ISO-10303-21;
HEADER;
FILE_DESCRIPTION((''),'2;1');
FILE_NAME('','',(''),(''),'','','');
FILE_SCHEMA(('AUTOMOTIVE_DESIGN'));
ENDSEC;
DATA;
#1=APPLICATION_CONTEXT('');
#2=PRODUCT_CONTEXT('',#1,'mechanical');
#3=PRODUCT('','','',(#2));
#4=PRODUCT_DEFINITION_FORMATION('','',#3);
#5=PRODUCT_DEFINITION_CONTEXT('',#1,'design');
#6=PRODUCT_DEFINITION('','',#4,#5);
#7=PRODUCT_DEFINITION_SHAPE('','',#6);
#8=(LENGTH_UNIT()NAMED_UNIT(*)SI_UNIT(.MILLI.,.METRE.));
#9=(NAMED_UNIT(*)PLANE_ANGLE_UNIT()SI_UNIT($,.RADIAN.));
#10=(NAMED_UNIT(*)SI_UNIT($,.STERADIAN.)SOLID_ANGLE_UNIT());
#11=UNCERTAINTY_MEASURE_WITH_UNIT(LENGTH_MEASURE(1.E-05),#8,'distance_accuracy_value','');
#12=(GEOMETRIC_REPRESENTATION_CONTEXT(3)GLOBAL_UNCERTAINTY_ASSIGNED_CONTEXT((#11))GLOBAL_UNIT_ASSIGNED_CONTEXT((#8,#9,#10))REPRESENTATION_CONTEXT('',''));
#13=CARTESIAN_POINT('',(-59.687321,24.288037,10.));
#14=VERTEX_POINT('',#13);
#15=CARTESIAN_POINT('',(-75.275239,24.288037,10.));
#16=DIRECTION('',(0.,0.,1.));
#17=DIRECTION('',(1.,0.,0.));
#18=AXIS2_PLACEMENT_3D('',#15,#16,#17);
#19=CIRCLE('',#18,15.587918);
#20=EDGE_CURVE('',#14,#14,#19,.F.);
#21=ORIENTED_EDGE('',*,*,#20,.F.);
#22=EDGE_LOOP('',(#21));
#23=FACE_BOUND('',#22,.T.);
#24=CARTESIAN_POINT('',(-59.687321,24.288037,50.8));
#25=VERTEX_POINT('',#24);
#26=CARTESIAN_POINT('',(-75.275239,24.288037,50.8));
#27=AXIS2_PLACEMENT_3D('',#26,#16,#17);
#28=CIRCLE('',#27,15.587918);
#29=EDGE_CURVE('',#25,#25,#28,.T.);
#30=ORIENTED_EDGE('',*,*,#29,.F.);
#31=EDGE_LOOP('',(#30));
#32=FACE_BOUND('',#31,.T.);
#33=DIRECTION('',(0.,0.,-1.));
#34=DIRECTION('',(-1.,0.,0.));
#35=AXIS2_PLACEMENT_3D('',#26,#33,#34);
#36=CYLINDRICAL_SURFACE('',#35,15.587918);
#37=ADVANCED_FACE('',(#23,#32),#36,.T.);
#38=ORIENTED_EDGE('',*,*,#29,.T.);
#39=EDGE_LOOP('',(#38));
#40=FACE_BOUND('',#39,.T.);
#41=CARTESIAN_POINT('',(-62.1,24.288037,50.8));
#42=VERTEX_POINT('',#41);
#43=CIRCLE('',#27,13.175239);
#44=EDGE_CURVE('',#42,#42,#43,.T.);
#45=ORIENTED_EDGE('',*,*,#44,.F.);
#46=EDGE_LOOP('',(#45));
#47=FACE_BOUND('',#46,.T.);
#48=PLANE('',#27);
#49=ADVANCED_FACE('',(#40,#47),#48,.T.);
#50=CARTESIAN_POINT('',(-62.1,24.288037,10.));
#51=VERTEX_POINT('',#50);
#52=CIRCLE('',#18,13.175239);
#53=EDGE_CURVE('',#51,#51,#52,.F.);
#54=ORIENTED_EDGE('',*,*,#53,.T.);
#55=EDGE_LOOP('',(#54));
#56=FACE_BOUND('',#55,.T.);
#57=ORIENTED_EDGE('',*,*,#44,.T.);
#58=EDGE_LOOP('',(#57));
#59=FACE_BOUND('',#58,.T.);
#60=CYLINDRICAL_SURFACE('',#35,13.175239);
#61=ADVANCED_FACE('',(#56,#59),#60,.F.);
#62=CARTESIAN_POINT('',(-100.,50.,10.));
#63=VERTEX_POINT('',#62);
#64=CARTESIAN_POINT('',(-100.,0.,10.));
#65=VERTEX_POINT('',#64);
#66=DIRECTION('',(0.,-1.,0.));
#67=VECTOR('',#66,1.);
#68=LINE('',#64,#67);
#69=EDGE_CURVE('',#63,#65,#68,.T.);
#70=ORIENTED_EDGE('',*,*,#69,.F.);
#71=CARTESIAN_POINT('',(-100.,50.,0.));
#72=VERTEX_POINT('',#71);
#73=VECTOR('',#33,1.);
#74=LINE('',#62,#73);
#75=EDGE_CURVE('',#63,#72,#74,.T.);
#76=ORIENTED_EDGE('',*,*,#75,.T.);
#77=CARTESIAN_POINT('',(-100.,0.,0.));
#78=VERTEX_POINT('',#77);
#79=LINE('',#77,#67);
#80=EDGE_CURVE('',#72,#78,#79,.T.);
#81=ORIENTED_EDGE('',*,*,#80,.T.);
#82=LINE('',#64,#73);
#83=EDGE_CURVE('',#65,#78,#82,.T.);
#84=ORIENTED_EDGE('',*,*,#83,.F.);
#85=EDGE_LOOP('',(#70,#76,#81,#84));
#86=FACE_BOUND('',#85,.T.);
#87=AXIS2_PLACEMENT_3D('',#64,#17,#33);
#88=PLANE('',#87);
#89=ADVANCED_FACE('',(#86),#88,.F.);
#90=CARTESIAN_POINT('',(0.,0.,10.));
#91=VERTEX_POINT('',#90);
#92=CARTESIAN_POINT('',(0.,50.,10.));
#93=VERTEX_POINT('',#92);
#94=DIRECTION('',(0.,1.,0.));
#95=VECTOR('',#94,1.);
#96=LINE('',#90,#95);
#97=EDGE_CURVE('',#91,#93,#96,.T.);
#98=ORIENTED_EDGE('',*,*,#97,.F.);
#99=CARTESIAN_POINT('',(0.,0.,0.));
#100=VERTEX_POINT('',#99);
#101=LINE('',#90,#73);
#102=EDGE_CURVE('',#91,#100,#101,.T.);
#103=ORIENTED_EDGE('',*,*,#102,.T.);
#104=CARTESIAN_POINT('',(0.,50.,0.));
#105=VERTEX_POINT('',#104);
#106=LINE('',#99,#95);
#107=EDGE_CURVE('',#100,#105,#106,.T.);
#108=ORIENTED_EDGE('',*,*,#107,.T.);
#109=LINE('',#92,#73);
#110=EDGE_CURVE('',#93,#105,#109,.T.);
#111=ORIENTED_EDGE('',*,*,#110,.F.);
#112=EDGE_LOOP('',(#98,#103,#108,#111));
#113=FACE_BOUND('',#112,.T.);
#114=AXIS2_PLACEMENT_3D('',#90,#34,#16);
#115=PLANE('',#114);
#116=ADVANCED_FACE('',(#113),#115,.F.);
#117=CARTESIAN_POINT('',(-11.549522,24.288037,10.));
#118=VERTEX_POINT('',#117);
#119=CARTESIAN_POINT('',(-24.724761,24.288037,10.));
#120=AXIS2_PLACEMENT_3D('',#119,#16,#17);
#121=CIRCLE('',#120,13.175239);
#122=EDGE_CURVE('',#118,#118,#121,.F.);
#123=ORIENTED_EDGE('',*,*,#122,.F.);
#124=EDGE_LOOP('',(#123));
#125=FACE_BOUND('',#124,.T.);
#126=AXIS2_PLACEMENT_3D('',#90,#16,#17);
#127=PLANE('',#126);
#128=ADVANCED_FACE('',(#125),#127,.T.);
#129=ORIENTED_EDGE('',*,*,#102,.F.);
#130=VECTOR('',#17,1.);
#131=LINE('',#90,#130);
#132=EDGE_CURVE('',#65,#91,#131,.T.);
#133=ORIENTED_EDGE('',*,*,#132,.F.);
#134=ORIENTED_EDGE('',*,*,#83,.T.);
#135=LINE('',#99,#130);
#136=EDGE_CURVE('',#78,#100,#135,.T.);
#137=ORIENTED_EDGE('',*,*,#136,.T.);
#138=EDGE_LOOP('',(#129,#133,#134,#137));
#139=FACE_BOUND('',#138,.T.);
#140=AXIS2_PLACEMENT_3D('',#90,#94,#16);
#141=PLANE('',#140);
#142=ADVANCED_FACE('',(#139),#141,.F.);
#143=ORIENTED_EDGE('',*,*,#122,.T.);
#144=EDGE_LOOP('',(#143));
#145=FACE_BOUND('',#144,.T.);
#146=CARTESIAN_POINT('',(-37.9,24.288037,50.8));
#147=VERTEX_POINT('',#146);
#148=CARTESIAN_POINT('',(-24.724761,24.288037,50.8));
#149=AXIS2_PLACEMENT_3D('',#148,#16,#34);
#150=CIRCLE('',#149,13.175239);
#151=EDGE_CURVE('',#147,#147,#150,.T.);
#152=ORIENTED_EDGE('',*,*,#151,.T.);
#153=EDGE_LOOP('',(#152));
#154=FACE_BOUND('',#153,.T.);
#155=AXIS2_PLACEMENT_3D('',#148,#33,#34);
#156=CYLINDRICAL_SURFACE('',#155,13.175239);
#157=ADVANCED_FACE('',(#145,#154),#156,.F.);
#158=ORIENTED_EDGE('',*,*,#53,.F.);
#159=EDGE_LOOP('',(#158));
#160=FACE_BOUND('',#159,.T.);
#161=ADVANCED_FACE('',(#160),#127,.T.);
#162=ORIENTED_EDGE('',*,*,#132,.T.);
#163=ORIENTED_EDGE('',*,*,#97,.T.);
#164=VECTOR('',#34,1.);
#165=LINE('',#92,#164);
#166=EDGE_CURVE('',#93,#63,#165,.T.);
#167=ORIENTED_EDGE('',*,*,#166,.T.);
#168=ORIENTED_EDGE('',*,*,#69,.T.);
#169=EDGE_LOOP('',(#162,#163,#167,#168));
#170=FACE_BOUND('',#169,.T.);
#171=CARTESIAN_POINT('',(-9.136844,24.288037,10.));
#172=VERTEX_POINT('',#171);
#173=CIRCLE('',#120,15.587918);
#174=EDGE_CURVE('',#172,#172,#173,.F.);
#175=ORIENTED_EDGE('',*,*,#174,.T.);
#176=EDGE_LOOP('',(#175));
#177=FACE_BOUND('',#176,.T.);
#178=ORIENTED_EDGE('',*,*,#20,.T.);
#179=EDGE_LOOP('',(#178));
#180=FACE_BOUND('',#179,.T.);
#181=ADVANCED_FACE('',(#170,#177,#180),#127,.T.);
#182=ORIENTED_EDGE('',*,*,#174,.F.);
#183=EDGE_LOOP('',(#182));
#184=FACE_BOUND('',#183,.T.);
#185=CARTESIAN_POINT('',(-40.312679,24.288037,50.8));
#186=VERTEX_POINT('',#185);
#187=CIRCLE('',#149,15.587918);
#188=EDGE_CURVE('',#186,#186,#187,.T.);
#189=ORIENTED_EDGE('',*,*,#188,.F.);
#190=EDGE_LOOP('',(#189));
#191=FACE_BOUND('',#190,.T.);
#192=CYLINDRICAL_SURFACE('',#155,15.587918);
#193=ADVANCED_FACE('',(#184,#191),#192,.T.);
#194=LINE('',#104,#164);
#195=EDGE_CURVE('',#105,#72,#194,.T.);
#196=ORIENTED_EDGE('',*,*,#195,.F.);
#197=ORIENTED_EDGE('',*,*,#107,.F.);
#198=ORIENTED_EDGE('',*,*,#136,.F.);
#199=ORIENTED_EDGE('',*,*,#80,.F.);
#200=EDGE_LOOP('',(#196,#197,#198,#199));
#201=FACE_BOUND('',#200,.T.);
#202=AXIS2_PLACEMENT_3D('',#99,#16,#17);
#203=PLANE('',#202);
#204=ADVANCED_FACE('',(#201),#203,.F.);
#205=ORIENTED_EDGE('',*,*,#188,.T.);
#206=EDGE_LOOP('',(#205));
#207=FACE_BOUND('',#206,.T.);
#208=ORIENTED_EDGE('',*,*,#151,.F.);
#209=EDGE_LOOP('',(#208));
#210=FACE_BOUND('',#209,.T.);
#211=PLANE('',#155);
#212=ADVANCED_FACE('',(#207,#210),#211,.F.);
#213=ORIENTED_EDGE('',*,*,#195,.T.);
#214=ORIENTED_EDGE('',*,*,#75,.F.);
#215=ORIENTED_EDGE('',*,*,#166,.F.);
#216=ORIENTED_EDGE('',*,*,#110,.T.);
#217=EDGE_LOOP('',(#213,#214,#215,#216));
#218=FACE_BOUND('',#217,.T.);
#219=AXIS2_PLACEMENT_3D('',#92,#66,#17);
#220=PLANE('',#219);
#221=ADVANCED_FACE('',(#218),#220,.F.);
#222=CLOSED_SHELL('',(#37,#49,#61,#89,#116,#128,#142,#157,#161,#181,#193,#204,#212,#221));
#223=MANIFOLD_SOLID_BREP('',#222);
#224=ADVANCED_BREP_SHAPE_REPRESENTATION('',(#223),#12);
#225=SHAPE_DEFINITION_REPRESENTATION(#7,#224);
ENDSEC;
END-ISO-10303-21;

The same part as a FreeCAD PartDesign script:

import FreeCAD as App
import Part
import Sketcher

V = App.Vector

doc = App.newDocument("Part")
body = doc.addObject("PartDesign::Body", "Body")

sketch1 = body.newObject("Sketcher::SketchObject", "Sketch")
sketch1.AttachmentSupport = (doc.getObject("XY_Plane"), [""])
sketch1.MapMode = "FlatFace"
sketch1.addGeometry([
    Part.LineSegment(V(-100, 50, 0), V(-100, 0, 0)),
    Part.LineSegment(V(-100, 0, 0), V(0, 0, 0)),
    Part.LineSegment(V(0, 0, 0), V(0, 50, 0)),
    Part.LineSegment(V(0, 50, 0), V(-100, 50, 0)),
], False)
sketch1.addConstraint([
    Sketcher.Constraint("Coincident", 0, 2, 1, 1),
    Sketcher.Constraint("Coincident", 1, 2, 2, 1),
    Sketcher.Constraint("Coincident", 2, 2, 3, 1),
    Sketcher.Constraint("Coincident", 3, 2, 0, 1),
    Sketcher.Constraint("Vertical", 0),
    Sketcher.Constraint("Horizontal", 1),
    Sketcher.Constraint("Vertical", 2),
    Sketcher.Constraint("Horizontal", 3),
    Sketcher.Constraint("Coincident", 1, 2, -1, 1),
    Sketcher.Constraint("DistanceX", 1, 1, 1, 2, 100.0),
    Sketcher.Constraint("DistanceY", 0, 2, 0, 1, 50.0),
])
pad1 = body.newObject("PartDesign::Pad", "Pad")
pad1.Profile = sketch1
pad1.Length = 10

sketch2 = body.newObject("Sketcher::SketchObject", "Sketch001")
sketch2.AttachmentSupport = (doc.getObject("XY_Plane"), [""])
sketch2.MapMode = "FlatFace"
sketch2.addGeometry([
    Part.Circle(V(-75.275239, 24.288037, 0), V(0, 0, 1), 15.587918),
    Part.Circle(V(-75.275239, 24.288037, 0), V(0, 0, 1), 13.175239),
    Part.Circle(V(-24.724761, 24.288037, 0), V(0, 0, 1), 15.587918),
    Part.Circle(V(-24.724761, 24.288037, 0), V(0, 0, 1), 13.175239),
], False)
sketch2.addConstraint([
    Sketcher.Constraint("Coincident", 1, 3, 0, 3),
    Sketcher.Constraint("Coincident", 3, 3, 2, 3),
    Sketcher.Constraint("Equal", 0, 2),
    Sketcher.Constraint("Equal", 1, 3),
    Sketcher.Constraint("Horizontal", 1, 3, 2, 3),
    Sketcher.Constraint("Diameter", 1, 26.350478),
    Sketcher.Constraint("Diameter", 0, 31.175835),
    Sketcher.Constraint("DistanceX", 0, 3, -1, 1, 75.275239),
    Sketcher.Constraint("DistanceX", 2, 3, -1, 1, 24.724761),
    Sketcher.Constraint("DistanceY", -1, 1, 0, 3, 24.288037),
])
pad2 = body.newObject("PartDesign::Pad", "Pad001")
pad2.Profile = sketch2
pad2.Length = 50.8

doc.recompute()
